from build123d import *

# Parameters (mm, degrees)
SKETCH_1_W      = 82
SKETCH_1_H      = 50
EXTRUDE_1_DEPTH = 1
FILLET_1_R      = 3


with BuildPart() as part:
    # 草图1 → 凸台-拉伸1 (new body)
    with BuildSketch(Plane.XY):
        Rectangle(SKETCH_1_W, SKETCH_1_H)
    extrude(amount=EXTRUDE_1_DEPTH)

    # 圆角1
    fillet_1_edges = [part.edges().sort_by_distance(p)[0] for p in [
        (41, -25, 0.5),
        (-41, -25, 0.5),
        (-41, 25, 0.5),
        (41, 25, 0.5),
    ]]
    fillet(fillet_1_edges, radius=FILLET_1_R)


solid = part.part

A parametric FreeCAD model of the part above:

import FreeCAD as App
import Part
import Sketcher
from FreeCAD import Vector
Q = App.Units.Quantity


def edges_at(feature, points):
    """Names of the edges that pass closest to the given points."""
    edges = feature.Shape.Edges
    near = lambda p: min(range(len(edges)), key=lambda i: edges[i].distToShape(Part.Vertex(*p))[0])
    return sorted({f"Edge{near(p) + 1}" for p in points})


def add_polygon(sketch, points):
    """Adds a closed chain of lines whose ends are joined by coincident constraints."""
    first, n = sketch.GeometryCount, len(points)
    for a, b in zip(points, points[1:] + points[:1]):
        sketch.addGeometry(Part.LineSegment(App.Vector(*a, 0), App.Vector(*b, 0)), False)
    for i in range(n):
        sketch.addConstraint(Sketcher.Constraint("Coincident", first + i, 2, first + (i + 1) % n, 1))

doc = App.newDocument("Part")
body = doc.addObject("PartDesign::Body", "Body")

sketch1 = body.newObject("Sketcher::SketchObject", "Sketch")
sketch1.AttachmentSupport = (doc.getObject("XY_Plane"), [""])
sketch1.MapMode = "FlatFace"
add_polygon(sketch1, [(-41, 25), (-41, -25), (41, -25), (41, 25)])
sketch1.addConstraint(Sketcher.Constraint("Vertical", 0))
sketch1.addConstraint(Sketcher.Constraint("Horizontal", 1))
sketch1.addConstraint(Sketcher.Constraint("Vertical", 2))
sketch1.addConstraint(Sketcher.Constraint("Horizontal", 3))
sketch1.addConstraint(Sketcher.Constraint("Symmetric", 0, 2, 2, 2, -1, 1))
sketch1.addConstraint(Sketcher.Constraint("DistanceX", 1, 1, 1, 2, Q("82 mm")))
sketch1.addConstraint(Sketcher.Constraint("DistanceY", 0, 2, 0, 1, Q("50 mm")))
pad1 = body.newObject("PartDesign::Pad", "Pad")
pad1.Profile = sketch1
pad1.Length = 1
doc.recompute()

fillet = body.newObject("PartDesign::Fillet", "Fillet")
fillet.Base = (pad1, edges_at(pad1, [
    (41, -25, 0.5),
    (-41, -25, 0.5),
    (-41, 25, 0.5),
    (41, 25, 0.5),
]))
fillet.Radius = 3

doc.recompute()
